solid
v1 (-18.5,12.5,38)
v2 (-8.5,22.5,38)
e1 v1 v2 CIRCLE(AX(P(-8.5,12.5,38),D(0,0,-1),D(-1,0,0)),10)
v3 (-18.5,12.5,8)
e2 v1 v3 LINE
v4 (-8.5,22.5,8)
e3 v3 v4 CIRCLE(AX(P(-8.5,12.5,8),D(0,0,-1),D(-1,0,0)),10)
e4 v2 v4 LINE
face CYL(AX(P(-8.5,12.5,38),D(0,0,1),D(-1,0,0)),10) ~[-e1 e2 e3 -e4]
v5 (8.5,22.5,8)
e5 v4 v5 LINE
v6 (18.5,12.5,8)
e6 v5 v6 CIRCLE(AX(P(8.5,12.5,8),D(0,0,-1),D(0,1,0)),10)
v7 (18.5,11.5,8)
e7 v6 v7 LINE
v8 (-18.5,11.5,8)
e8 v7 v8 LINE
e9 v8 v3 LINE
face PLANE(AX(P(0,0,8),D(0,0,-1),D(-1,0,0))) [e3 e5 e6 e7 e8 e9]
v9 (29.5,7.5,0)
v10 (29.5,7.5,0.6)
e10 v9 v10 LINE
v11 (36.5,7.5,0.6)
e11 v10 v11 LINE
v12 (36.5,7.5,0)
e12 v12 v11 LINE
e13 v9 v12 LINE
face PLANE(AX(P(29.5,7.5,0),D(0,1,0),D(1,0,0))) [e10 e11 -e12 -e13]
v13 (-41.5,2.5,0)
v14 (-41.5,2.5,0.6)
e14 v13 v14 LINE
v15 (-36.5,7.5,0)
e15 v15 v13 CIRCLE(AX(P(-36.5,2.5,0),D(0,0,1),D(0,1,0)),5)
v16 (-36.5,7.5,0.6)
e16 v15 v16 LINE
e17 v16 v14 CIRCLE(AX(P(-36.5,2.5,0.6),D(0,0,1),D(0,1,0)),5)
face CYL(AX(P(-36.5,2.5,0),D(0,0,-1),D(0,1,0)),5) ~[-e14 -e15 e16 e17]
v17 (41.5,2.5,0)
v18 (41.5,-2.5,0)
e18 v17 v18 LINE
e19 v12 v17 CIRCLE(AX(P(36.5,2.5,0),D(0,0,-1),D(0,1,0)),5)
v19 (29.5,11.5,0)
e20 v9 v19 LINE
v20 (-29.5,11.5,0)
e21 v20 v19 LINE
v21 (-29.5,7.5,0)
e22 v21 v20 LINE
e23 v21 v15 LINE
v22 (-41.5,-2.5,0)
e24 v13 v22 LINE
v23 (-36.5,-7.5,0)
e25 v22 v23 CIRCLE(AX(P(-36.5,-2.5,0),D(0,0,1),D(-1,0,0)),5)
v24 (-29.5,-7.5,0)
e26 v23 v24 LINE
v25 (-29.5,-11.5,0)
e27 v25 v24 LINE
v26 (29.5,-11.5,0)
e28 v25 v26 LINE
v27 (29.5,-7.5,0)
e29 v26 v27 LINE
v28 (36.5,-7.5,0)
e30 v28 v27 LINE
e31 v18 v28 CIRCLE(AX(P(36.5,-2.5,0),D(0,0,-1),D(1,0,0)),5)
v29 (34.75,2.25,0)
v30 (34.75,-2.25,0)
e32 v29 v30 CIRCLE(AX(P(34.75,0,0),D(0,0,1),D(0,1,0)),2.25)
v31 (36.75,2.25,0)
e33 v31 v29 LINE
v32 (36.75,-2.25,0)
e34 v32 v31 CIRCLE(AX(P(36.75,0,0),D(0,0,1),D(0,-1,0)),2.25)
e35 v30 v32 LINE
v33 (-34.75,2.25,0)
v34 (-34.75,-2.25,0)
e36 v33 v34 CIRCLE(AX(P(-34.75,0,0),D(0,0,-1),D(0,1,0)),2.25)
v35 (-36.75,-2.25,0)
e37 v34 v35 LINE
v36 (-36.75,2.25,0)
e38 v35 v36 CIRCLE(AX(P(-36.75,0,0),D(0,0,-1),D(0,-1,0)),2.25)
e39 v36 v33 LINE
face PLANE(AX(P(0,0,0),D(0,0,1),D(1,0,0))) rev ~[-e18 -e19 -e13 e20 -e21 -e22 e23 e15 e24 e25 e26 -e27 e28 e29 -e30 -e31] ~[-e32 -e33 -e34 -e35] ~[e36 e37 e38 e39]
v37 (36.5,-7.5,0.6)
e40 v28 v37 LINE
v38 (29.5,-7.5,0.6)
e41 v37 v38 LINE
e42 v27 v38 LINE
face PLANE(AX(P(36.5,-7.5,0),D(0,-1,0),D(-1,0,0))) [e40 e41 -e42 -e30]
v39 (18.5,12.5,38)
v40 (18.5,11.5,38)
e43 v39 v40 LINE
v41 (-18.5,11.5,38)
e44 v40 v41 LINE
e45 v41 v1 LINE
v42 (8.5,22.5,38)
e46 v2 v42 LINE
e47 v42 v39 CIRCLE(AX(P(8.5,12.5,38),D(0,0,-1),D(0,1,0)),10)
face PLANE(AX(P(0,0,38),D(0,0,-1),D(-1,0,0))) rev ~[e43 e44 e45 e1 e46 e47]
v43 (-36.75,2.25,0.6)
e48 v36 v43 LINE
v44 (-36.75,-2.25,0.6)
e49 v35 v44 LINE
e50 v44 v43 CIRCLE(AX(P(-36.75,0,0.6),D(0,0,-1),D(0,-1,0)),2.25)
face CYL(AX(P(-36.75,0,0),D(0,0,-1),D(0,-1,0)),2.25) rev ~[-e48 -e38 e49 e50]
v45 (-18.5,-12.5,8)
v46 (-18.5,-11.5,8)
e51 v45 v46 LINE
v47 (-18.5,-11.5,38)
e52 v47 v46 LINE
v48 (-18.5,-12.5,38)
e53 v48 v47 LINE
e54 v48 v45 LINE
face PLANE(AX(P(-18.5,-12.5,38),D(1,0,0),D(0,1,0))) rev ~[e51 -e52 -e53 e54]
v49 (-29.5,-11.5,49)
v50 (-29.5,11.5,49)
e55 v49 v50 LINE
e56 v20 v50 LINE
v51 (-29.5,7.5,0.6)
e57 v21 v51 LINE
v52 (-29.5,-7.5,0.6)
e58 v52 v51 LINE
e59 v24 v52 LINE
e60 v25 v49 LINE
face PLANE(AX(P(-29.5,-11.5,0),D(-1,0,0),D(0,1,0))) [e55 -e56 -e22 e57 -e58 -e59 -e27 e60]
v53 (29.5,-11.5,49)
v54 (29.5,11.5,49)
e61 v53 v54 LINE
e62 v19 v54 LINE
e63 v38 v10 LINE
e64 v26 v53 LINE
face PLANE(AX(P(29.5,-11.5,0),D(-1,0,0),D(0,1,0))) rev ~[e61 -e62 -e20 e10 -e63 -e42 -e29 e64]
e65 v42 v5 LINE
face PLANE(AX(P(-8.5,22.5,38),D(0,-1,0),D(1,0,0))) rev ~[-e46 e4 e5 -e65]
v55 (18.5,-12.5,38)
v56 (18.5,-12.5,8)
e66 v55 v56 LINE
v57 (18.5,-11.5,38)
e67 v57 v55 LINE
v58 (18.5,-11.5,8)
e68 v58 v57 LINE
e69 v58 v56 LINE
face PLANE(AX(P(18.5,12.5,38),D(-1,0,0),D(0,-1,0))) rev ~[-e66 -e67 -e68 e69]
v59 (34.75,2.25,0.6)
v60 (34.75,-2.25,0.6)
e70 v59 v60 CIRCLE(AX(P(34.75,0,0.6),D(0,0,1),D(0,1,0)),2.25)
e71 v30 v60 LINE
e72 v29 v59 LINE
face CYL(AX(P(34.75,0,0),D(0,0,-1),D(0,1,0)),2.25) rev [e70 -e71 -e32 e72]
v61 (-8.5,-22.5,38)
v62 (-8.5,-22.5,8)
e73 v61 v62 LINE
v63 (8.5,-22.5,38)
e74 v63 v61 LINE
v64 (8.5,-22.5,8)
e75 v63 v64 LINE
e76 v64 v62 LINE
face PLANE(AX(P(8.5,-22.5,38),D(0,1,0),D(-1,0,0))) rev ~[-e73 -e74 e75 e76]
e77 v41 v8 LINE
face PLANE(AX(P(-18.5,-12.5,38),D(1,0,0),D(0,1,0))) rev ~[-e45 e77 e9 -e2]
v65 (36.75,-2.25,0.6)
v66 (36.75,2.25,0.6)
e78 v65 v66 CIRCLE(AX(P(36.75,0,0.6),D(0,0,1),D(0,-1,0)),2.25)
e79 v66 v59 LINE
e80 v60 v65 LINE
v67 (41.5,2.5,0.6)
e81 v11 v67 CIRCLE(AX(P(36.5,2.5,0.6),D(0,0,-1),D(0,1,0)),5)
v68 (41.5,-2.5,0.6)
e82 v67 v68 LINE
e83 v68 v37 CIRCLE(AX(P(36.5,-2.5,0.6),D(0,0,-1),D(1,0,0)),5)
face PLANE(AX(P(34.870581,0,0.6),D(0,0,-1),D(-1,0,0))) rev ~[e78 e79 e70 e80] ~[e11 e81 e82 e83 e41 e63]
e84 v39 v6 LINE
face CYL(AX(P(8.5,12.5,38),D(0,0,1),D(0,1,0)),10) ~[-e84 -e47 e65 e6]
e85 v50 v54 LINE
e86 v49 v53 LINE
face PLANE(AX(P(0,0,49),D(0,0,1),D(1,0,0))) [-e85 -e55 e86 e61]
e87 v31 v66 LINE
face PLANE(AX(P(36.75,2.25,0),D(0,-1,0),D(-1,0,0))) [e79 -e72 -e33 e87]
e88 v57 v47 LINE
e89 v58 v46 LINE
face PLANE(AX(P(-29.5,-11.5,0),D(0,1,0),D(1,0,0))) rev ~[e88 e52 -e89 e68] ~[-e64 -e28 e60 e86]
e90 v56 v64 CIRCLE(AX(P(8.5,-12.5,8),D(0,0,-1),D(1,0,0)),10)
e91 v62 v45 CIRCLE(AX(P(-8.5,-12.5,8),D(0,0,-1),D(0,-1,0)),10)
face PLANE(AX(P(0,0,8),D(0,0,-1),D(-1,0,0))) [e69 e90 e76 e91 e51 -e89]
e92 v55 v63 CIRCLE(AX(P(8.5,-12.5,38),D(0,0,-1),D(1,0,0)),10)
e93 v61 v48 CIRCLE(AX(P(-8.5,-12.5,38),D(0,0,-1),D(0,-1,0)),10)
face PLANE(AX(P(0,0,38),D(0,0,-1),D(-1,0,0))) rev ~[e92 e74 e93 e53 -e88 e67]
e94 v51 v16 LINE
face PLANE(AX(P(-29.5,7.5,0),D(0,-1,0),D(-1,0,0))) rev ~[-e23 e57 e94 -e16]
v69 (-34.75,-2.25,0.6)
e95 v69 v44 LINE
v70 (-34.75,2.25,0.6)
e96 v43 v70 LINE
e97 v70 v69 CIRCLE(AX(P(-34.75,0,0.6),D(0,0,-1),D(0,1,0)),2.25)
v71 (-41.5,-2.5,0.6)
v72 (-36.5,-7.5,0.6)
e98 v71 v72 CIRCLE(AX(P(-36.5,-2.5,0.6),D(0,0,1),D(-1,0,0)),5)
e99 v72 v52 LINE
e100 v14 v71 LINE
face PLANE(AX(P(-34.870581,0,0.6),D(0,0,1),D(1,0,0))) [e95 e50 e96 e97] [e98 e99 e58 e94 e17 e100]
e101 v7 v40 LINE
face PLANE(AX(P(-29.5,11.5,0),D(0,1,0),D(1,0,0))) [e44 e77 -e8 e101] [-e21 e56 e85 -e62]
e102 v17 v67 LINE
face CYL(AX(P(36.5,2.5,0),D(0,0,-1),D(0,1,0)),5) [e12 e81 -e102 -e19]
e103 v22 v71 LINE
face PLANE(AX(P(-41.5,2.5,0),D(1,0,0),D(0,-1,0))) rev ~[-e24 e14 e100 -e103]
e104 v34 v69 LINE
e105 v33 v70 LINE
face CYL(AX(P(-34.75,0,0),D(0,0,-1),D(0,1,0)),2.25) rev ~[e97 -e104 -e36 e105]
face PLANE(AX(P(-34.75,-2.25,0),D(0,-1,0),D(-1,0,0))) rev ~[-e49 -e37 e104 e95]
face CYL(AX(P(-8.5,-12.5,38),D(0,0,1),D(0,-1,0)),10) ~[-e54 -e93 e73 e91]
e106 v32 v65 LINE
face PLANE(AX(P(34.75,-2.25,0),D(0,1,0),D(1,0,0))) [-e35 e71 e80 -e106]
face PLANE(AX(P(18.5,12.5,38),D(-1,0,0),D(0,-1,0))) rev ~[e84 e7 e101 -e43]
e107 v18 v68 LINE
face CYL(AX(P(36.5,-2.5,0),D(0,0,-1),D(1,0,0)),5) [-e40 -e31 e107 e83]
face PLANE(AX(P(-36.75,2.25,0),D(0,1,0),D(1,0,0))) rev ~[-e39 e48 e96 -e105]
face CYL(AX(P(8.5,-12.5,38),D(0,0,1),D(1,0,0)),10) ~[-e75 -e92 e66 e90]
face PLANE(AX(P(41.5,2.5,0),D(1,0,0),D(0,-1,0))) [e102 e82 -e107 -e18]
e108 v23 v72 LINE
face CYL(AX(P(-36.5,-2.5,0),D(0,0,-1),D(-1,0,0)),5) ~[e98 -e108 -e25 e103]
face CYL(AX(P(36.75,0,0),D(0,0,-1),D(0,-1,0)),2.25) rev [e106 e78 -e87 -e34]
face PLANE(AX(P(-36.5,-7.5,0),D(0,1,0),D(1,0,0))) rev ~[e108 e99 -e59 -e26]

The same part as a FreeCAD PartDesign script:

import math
import FreeCAD as App
import Part
import Sketcher

V = App.Vector


def add_polygon(sketch, points):
    """Adds a closed chain of lines whose ends are joined by coincident constraints."""
    first, n = sketch.GeometryCount, len(points)
    for a, b in zip(points, points[1:] + points[:1]):
        sketch.addGeometry(Part.LineSegment(App.Vector(*a, 0), App.Vector(*b, 0)), False)
    for i in range(n):
        sketch.addConstraint(Sketcher.Constraint("Coincident", first + i, 2, first + (i + 1) % n, 1))

doc = App.newDocument("Part")
params = doc.addObject("Spreadsheet::Sheet", "Params")
for row, (alias, value) in enumerate([
    ("sketch1_width", "59 mm"),
    ("sketch1_height", "23 mm"),
    ("pad1_length", "49 mm"),
    ("sketch2_radius", "10 mm"),
    ("sketch2_width", "17 mm"),
    ("sketch2_height", "25 mm"),
    ("pad2_length", "30 mm"),
    ("sketch3_radius", "5 mm"),
    ("sketch3_width", "7 mm"),
    ("sketch3_width2", "2 mm"),
    ("sketch3_height", "5 mm"),
    ("sketch3_radius2", "2.25 mm"),
    ("pad3_length", "0.6 mm"),
], start=1):
    params.set(f"A{row}", alias)
    params.set(f"B{row}", "=" + value)
    params.setAlias(f"B{row}", alias)

body = doc.addObject("PartDesign::Body", "Body")

sketch1 = body.newObject("Sketcher::SketchObject", "Sketch")
sketch1.AttachmentSupport = (doc.getObject("XY_Plane"), [""])
sketch1.MapMode = "FlatFace"
add_polygon(sketch1, [(-30, 12), (-30, -12), (30, -12), (30, 12)])
sketch1.addConstraint(Sketcher.Constraint("Vertical", 0))
sketch1.addConstraint(Sketcher.Constraint("Horizontal", 1))
sketch1.addConstraint(Sketcher.Constraint("Vertical", 2))
sketch1.addConstraint(Sketcher.Constraint("Horizontal", 3))
sketch1.addConstraint(Sketcher.Constraint("Symmetric", 0, 2, 2, 2, -1, 1))
sketch1.addConstraint(Sketcher.Constraint("DistanceX", 1, 1, 1, 2, 59.0))
sketch1.addConstraint(Sketcher.Constraint("DistanceY", 0, 2, 0, 1, 23.0))
sketch1.setExpression("Constraints[9]", "Params.sketch1_width")
sketch1.setExpression("Constraints[10]", "Params.sketch1_height")
pad1 = body.newObject("PartDesign::Pad", "Pad")
pad1.Profile = sketch1
pad1.setExpression("Length", "Params.pad1_length")

sketch2 = body.newObject("Sketcher::SketchObject", "Sketch001")
sketch2.AttachmentSupport = (doc.getObject("XY_Plane"), [""])
sketch2.MapMode = "FlatFace"
sketch2.AttachmentOffset = App.Placement(V(0, 0, 38), App.Rotation())
sketch2.addGeometry(Part.LineSegment(V(8, 22, 0), V(-8, 22, 0)), False)
sketch2.addGeometry(Part.ArcOfCircle(Part.Circle(V(-8, 12, 0), V(0, 0, 1), 10), math.radians(90), math.radians(180)), False)
sketch2.addGeometry(Part.LineSegment(V(-18, 12, 0), V(-18, -12, 0)), False)
sketch2.addGeometry(Part.ArcOfCircle(Part.Circle(V(-8, -12, 0), V(0, 0, 1), 10), math.radians(180), math.radians(270)), False)
sketch2.addGeometry(Part.LineSegment(V(-8, -22, 0), V(8, -22, 0)), False)
sketch2.addGeometry(Part.ArcOfCircle(Part.Circle(V(8, -12, 0), V(0, 0, 1), 10), math.radians(-90), math.radians(0)), False)
sketch2.addGeometry(Part.LineSegment(V(18, -12, 0), V(18, 12, 0)), False)
sketch2.addGeometry(Part.ArcOfCircle(Part.Circle(V(8, 12, 0), V(0, 0, 1), 10), math.radians(0), math.radians(90)), False)
sketch2.addConstraint(Sketcher.Constraint("Tangent", 0, 2, 1, 1))
sketch2.addConstraint(Sketcher.Constraint("Tangent", 1, 2, 2, 1))
sketch2.addConstraint(Sketcher.Constraint("Tangent", 2, 2, 3, 1))
sketch2.addConstraint(Sketcher.Constraint("Tangent", 3, 2, 4, 1))
sketch2.addConstraint(Sketcher.Constraint("Tangent", 4, 2, 5, 1))
sketch2.addConstraint(Sketcher.Constraint("Tangent", 5, 2, 6, 1))
sketch2.addConstraint(Sketcher.Constraint("Tangent", 6, 2, 7, 1))
sketch2.addConstraint(Sketcher.Constraint("Tangent", 7, 2, 0, 1))
sketch2.addConstraint(Sketcher.Constraint("Horizontal", 0))
sketch2.addConstraint(Sketcher.Constraint("Vertical", 2))
sketch2.addConstraint(Sketcher.Constraint("Horizontal", 4))
sketch2.addConstraint(Sketcher.Constraint("Vertical", 6))
sketch2.addConstraint(Sketcher.Constraint("Equal", 1, 3))
sketch2.addConstraint(Sketcher.Constraint("Equal", 3, 5))
sketch2.addConstraint(Sketcher.Constraint("Equal", 5, 7))
sketch2.addConstraint(Sketcher.Constraint("Symmetric", 1, 3, 5, 3, -1, 1))
sketch2.addConstraint(Sketcher.Constraint("Radius", 1, 10.0))
sketch2.addConstraint(Sketcher.Constraint("DistanceX", 0, 2, 0, 1, 17.0))
sketch2.addConstraint(Sketcher.Constraint("DistanceY", 2, 2, 2, 1, 25.0))
sketch2.setExpression("Constraints[16]", "Params.sketch2_radius")
sketch2.setExpression("Constraints[17]", "Params.sketch2_width")
sketch2.setExpression("Constraints[18]", "Params.sketch2_height")
pad2 = body.newObject("PartDesign::Pad", "Pad001")
pad2.Profile = sketch2
pad2.setExpression("Length", "Params.pad2_length")
pad2.Reversed = True

sketch3 = body.newObject("Sketcher::SketchObject", "Sketch002")
sketch3.AttachmentSupport = (doc.getObject("XY_Plane"), [""])
sketch3.MapMode = "FlatFace"
sketch3.addGeometry(Part.LineSegment(V(29.5, 7.5, 0), V(36.5, 7.5, 0)), False)
sketch3.addGeometry(Part.ArcOfCircle(Part.Circle(V(36.5, 2.5, 0), V(0, 0, 1), 5), math.radians(0), math.radians(90)), False)
sketch3.addGeometry(Part.LineSegment(V(41.5, 2.5, 0), V(41.5, -2.5, 0)), False)
sketch3.addGeometry(Part.ArcOfCircle(Part.Circle(V(36.5, -2.5, 0), V(0, 0, 1), 5), math.radians(-90), math.radians(0)), False)
sketch3.addGeometry(Part.LineSegment(V(36.5, -7.5, 0), V(29.5, -7.5, 0)), False)
sketch3.addGeometry(Part.LineSegment(V(29.5, -7.5, 0), V(29.5, 7.5, 0)), False)
sketch3.addGeometry(Part.ArcOfCircle(Part.Circle(V(36.8, 0, 0), V(0, 0, 1), 2.2), math.radians(-90), math.radians(90)), False)
sketch3.addGeometry(Part.LineSegment(V(36.8, 2.2, 0), V(34.8, 2.2, 0)), False)
sketch3.addGeometry(Part.ArcOfCircle(Part.Circle(V(34.8, 0, 0), V(0, 0, 1), 2.2), math.radians(90), math.radians(270)), False)
sketch3.addGeometry(Part.LineSegment(V(34.8, -2.2, 0), V(36.8, -2.2, 0)), False)
sketch3.addGeometry(Part.LineSegment(V(-41.5, -2.5, 0), V(-41.5, 2.5, 0)), False)
sketch3.addGeometry(Part.ArcOfCircle(Part.Circle(V(-36.5, 2.5, 0), V(0, 0, 1), 5), math.radians(90), math.radians(180)), False)
sketch3.addGeometry(Part.LineSegment(V(-36.5, 7.5, 0), V(-29.5, 7.5, 0)), False)
sketch3.addGeometry(Part.LineSegment(V(-29.5, 7.5, 0), V(-29.5, -7.5, 0)), False)
sketch3.addGeometry(Part.LineSegment(V(-29.5, -7.5, 0), V(-36.5, -7.5, 0)), False)
sketch3.addGeometry(Part.ArcOfCircle(Part.Circle(V(-36.5, -2.5, 0), V(0, 0, 1), 5), math.radians(180), math.radians(270)), False)
sketch3.addGeometry(Part.ArcOfCircle(Part.Circle(V(-36.8, 0, 0), V(0, 0, 1), 2.2), math.radians(90), math.radians(270)), False)
sketch3.addGeometry(Part.LineSegment(V(-36.8, -2.2, 0), V(-34.8, -2.2, 0)), False)
sketch3.addGeometry(Part.ArcOfCircle(Part.Circle(V(-34.8, 0, 0), V(0, 0, 1), 2.2), math.radians(-90), math.radians(90)), False)
sketch3.addGeometry(Part.LineSegment(V(-34.8, 2.2, 0), V(-36.8, 2.2, 0)), False)
sketch3.addConstraint(Sketcher.Constraint("Tangent", 0, 2, 1, 2))
sketch3.addConstraint(Sketcher.Constraint("Tangent", 1, 1, 2, 1))
sketch3.addConstraint(Sketcher.Constraint("Tangent", 2, 2, 3, 2))
sketch3.addConstraint(Sketcher.Constraint("Tangent", 3, 1, 4, 1))
sketch3.addConstraint(Sketcher.Constraint("Coincident", 4, 2, 5, 1))
sketch3.addConstraint(Sketcher.Constraint("Coincident", 5, 2, 0, 1))
sketch3.addConstraint(Sketcher.Constraint("Tangent", 6, 2, 7, 1))
sketch3.addConstraint(Sketcher.Constraint("Tangent", 7, 2, 8, 1))
sketch3.addConstraint(Sketcher.Constraint("Tangent", 8, 2, 9, 1))
sketch3.addConstraint(Sketcher.Constraint("Tangent", 9, 2, 6, 1))
sketch3.addConstraint(Sketcher.Constraint("Tangent", 10, 2, 11, 2))
sketch3.addConstraint(Sketcher.Constraint("Tangent", 11, 1, 12, 1))
sketch3.addConstraint(Sketcher.Constraint("Coincident", 12, 2, 13, 1))
sketch3.addConstraint(Sketcher.Constraint("Coincident", 13, 2, 14, 1))
sketch3.addConstraint(Sketcher.Constraint("Tangent", 14, 2, 15, 2))
sketch3.addConstraint(Sketcher.Constraint("Tangent", 15, 1, 10, 1))
sketch3.addConstraint(Sketcher.Constraint("Tangent", 16, 2, 17, 1))
sketch3.addConstraint(Sketcher.Constraint("Tangent", 17, 2, 18, 1))
sketch3.addConstraint(Sketcher.Constraint("Tangent", 18, 2, 19, 1))
sketch3.addConstraint(Sketcher.Constraint("Tangent", 19, 2, 16, 1))
sketch3.addConstraint(Sketcher.Constraint("Horizontal", 0))
sketch3.addConstraint(Sketcher.Constraint("Vertical", 2))
sketch3.addConstraint(Sketcher.Constraint("Horizontal", 4))
sketch3.addConstraint(Sketcher.Constraint("Vertical", 5))
sketch3.addConstraint(Sketcher.Constraint("Horizontal", 7))
sketch3.addConstraint(Sketcher.Constraint("Horizontal", 9))
sketch3.addConstraint(Sketcher.Constraint("Vertical", 10))
sketch3.addConstraint(Sketcher.Constraint("Horizontal", 12))
sketch3.addConstraint(Sketcher.Constraint("Vertical", 13))
sketch3.addConstraint(Sketcher.Constraint("Horizontal", 14))
sketch3.addConstraint(Sketcher.Constraint("Horizontal", 17))
sketch3.addConstraint(Sketcher.Constraint("Horizontal", 19))
sketch3.addConstraint(Sketcher.Constraint("Equal", 1, 3))
sketch3.addConstraint(Sketcher.Constraint("Equal", 3, 11))
sketch3.addConstraint(Sketcher.Constraint("Equal", 11, 15))
sketch3.addConstraint(Sketcher.Constraint("Equal", 8, 16))
sketch3.addConstraint(Sketcher.Constraint("Symmetric", 3, 3, 11, 3, -1, 1))
sketch3.addConstraint(Sketcher.Constraint("Symmetric", 6, 3, 16, 3, -1, 1))
sketch3.addConstraint(Sketcher.Constraint("Symmetric", 5, 2, 13, 2, -1, 1))
sketch3.addConstraint(Sketcher.Constraint("Symmetric", 8, 3, 18, 3, -2))
sketch3.addConstraint(Sketcher.Constraint("Horizontal", 1, 3, 11, 3))
sketch3.addConstraint(Sketcher.Constraint("Radius", 1, 5.0))
sketch3.addConstraint(Sketcher.Constraint("DistanceX", 0, 1, 0, 2, 7.0))
sketch3.addConstraint(Sketcher.Constraint("DistanceX", 7, 2, 7, 1, 2.0))
sketch3.addConstraint(Sketcher.Constraint("DistanceY", 2, 2, 2, 1, 5.0))
sketch3.addConstraint(Sketcher.Constraint("Radius", 6, 2.25))
sketch3.addConstraint(Sketcher.Constraint("DistanceX", 11, 3, 1, 3, 73.0))
sketch3.addConstraint(Sketcher.Constraint("DistanceX", 16, 3, 8, 3, 71.5))
sketch3.setExpression("Constraints[41]", "Params.sketch3_radius")
sketch3.setExpression("Constraints[42]", "Params.sketch3_width")
sketch3.setExpression("Constraints[43]", "Params.sketch3_width2")
sketch3.setExpression("Constraints[44]", "Params.sketch3_height")
sketch3.setExpression("Constraints[45]", "Params.sketch3_radius2")
pad3 = body.newObject("PartDesign::Pad", "Pad002")
pad3.Profile = sketch3
pad3.setExpression("Length", "Params.pad3_length")

doc.recompute()
